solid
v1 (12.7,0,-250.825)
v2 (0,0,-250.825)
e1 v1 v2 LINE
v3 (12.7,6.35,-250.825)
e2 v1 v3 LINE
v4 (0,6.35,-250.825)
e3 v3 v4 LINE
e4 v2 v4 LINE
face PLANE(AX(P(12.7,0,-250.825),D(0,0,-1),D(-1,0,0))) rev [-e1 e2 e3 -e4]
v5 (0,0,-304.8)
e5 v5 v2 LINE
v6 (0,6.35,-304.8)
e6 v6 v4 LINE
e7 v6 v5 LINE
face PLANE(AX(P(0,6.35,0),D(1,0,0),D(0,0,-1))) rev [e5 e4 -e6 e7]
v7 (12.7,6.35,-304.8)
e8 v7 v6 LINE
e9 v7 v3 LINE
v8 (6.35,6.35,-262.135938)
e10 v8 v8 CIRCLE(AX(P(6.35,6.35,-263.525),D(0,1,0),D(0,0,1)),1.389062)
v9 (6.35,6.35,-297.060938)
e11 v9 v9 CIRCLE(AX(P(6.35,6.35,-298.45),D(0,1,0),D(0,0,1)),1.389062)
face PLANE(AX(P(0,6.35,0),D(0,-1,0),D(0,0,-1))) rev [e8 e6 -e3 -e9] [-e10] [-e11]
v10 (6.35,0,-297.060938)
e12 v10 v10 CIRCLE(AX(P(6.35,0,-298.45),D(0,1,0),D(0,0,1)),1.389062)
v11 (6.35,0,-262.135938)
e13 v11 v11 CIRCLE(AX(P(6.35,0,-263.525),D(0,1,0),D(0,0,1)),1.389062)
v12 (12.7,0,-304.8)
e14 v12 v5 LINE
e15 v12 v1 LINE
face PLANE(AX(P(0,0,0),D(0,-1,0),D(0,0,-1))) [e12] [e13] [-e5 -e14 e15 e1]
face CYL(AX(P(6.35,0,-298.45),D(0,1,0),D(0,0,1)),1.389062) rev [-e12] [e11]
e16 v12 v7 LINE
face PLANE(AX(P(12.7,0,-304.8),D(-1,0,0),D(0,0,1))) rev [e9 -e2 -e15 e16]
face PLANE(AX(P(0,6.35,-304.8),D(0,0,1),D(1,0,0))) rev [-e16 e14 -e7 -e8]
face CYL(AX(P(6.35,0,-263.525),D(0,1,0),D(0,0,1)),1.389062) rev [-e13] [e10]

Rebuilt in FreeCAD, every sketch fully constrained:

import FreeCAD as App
import Part
import Sketcher
from FreeCAD import Vector
Q = App.Units.Quantity

doc = App.newDocument("Part")
body = doc.addObject("PartDesign::Body", "Body")

# Sketch on XZ plane
sketch1 = body.newObject("Sketcher::SketchObject", "Sketch")
sketch1.AttachmentSupport = (doc.getObject("XZ_Plane"), [""])
sketch1.MapMode = "FlatFace"
sketch1.addGeometry([
    Part.LineSegment(Vector(0, -305, 0), Vector(0, 0, 0)),
    Part.LineSegment(Vector(0, 0, 0), Vector(305, 0, 0)),
    Part.LineSegment(Vector(305, 0, 0), Vector(305, -305, 0)),
    Part.LineSegment(Vector(305, -305, 0), Vector(0, -305, 0)),
], False)
sketch1.addConstraint([
    Sketcher.Constraint("Coincident", 0, 2, 1, 1),
    Sketcher.Constraint("Coincident", 1, 2, 2, 1),
    Sketcher.Constraint("Coincident", 2, 2, 3, 1),
    Sketcher.Constraint("Coincident", 3, 2, 0, 1),
    Sketcher.Constraint("Vertical", 0),
    Sketcher.Constraint("Horizontal", 1),
    Sketcher.Constraint("Vertical", 2),
    Sketcher.Constraint("Horizontal", 3),
    Sketcher.Constraint("Coincident", 0, 2, -1, 1),
    Sketcher.Constraint("Equal", 3, 0),
    Sketcher.Constraint("DistanceX", 1, 1, 1, 2, Q("12 in")),
])
pad1 = body.newObject("PartDesign::Pad", "Pad")
pad1.Profile = sketch1
pad1.Length = Q("0.25 in")
pad1.Reversed = True

# Sketch on XZ plane
sketch2 = body.newObject("Sketcher::SketchObject", "Sketch001")
sketch2.AttachmentSupport = (doc.getObject("XZ_Plane"), [""])
sketch2.MapMode = "FlatFace"
sketch2.AttachmentOffset = App.Placement(Vector(0, 0, -0.25 * 25.4), App.Rotation())
sketch2.addGeometry([
    Part.LineSegment(Vector(13, -305, 0), Vector(13, -251, 0)),  # 0
    Part.LineSegment(Vector(13, -251, 0), Vector(0, -251, 0)),  # 1
    Part.LineSegment(Vector(0, -251, 0), Vector(0, 0, 0)),  # 2
    Part.LineSegment(Vector(0, 0, 0), Vector(305, 0, 0)),  # 3
    Part.LineSegment(Vector(305, 0, 0), Vector(305, -305, 0)),  # 4
    Part.LineSegment(Vector(305, -305, 0), Vector(13, -305, 0)),  # 5
], False)
sketch2.addConstraint([
    Sketcher.Constraint("Coincident", 0, 2, 1, 1),
    Sketcher.Constraint("Coincident", 1, 2, 2, 1),
    Sketcher.Constraint("Coincident", 2, 2, 3, 1),
    Sketcher.Constraint("Coincident", 3, 2, 4, 1),
    Sketcher.Constraint("Coincident", 4, 2, 5, 1),
    Sketcher.Constraint("Coincident", 5, 2, 0, 1),
    Sketcher.Constraint("Vertical", 0),
    Sketcher.Constraint("Horizontal", 1),
    Sketcher.Constraint("Vertical", 2),
    Sketcher.Constraint("Horizontal", 3),
    Sketcher.Constraint("Vertical", 4),
    Sketcher.Constraint("Horizontal", 5),
    Sketcher.Constraint("Coincident", 2, 2, -1, 1),
    Sketcher.Constraint("Equal", 3, 4),
    Sketcher.Constraint("DistanceX", 3, 1, 3, 2, Q("12 in")),
    Sketcher.Constraint("DistanceX", 1, 2, 1, 1, Q("0.5 in")),
    Sketcher.Constraint("DistanceY", 0, 1, 0, 2, Q("2.125 in")),
])
pocket1 = body.newObject("PartDesign::Pocket", "Pocket")
pocket1.Profile = sketch2
pocket1.Length = Q("0.25 in")
pocket1.Reversed = True

# Sketch on XZ plane
sketch3 = body.newObject("Sketcher::SketchObject", "Sketch002")
sketch3.AttachmentSupport = (doc.getObject("XZ_Plane"), [""])
sketch3.MapMode = "FlatFace"
sketch3.AttachmentOffset = App.Placement(Vector(0, 0, -0.25 * 25.4), App.Rotation())
sketch3.addGeometry([
    Part.Circle(Vector(6.3, -263.5, 0), Vector(0, 0, 1), 1.4),
    Part.Circle(Vector(6.3, -298.4, 0), Vector(0, 0, 1), 1.4),
], False)
sketch3.addConstraint([
    Sketcher.Constraint("Equal", 0, 1),
    Sketcher.Constraint("Vertical", 0, 3, 1, 3),
    Sketcher.Constraint("Diameter", 0, Q("0.109375 in")),
    Sketcher.Constraint("DistanceX", -1, 1, 0, 3, Q("0.25 in")),
    Sketcher.Constraint("DistanceY", 1, 3, -1, 1, Q("11.75 in")),
    Sketcher.Constraint("DistanceY", 0, 3, -1, 1, Q("10.375 in")),
])
pocket2 = body.newObject("PartDesign::Pocket", "Pocket001")
pocket2.Profile = sketch3
pocket2.Type = "ThroughAll"
pocket2.Reversed = True

doc.recompute()
